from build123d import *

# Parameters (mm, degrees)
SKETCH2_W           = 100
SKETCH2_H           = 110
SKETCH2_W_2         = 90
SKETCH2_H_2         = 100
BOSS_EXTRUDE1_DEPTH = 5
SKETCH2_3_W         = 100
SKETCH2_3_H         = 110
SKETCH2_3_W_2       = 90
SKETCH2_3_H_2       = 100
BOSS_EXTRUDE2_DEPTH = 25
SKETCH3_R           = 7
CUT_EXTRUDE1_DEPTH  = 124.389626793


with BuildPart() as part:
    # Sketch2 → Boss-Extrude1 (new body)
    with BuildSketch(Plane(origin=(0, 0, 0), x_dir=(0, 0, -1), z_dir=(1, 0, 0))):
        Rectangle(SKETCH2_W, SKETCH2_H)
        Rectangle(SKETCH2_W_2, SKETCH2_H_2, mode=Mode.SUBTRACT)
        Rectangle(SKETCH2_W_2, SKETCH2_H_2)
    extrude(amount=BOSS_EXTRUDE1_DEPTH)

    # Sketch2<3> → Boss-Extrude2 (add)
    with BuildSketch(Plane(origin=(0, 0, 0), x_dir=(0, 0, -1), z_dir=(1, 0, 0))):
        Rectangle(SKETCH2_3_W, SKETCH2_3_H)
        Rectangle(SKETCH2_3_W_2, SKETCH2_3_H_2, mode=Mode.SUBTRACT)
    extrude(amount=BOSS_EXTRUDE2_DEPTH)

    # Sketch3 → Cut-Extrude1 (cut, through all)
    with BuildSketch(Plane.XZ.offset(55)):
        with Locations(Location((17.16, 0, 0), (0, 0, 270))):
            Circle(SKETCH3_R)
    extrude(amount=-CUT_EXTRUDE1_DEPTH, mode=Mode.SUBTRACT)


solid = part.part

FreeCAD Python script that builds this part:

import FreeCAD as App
import Part
import Sketcher

V = App.Vector
Q = App.Units.Quantity

doc = App.newDocument("Part")
body = doc.addObject("PartDesign::Body", "Body")

# Sketch on YZ plane
sketch1 = body.newObject("Sketcher::SketchObject", "Sketch")
sketch1.AttachmentSupport = (doc.getObject("YZ_Plane"), [""])
sketch1.MapMode = "FlatFace"
sketch1.addGeometry([
    Part.LineSegment(V(55, 50, 0), V(-55, 50, 0)),
    Part.LineSegment(V(-55, 50, 0), V(-55, -50, 0)),
    Part.LineSegment(V(-55, -50, 0), V(55, -50, 0)),
    Part.LineSegment(V(55, -50, 0), V(55, 50, 0)),
], False)
sketch1.addConstraint([
    Sketcher.Constraint("Coincident", 0, 2, 1, 1),
    Sketcher.Constraint("Coincident", 1, 2, 2, 1),
    Sketcher.Constraint("Coincident", 2, 2, 3, 1),
    Sketcher.Constraint("Coincident", 3, 2, 0, 1),
    Sketcher.Constraint("Horizontal", 0),
    Sketcher.Constraint("Vertical", 1),
    Sketcher.Constraint("Horizontal", 2),
    Sketcher.Constraint("Vertical", 3),
    Sketcher.Constraint("Symmetric", 0, 2, 2, 2, -1, 1),
    Sketcher.Constraint("DistanceX", 0, 2, 0, 1, Q("110 mm")),
    Sketcher.Constraint("DistanceY", 1, 2, 1, 1, Q("100 mm")),
])
pad1 = body.newObject("PartDesign::Pad", "Pad")
pad1.Profile = sketch1
pad1.Length = 5

# Sketch on YZ plane
sketch2 = body.newObject("Sketcher::SketchObject", "Sketch001")
sketch2.AttachmentSupport = (doc.getObject("YZ_Plane"), [""])
sketch2.MapMode = "FlatFace"
sketch2.addGeometry([
    Part.LineSegment(V(55, 50, 0), V(-55, 50, 0)),  # 0
    Part.LineSegment(V(-55, 50, 0), V(-55, -50, 0)),  # 1
    Part.LineSegment(V(-55, -50, 0), V(55, -50, 0)),  # 2
    Part.LineSegment(V(55, -50, 0), V(55, 50, 0)),  # 3
    Part.LineSegment(V(-50, -45, 0), V(-50, 45, 0)),  # 4
    Part.LineSegment(V(-50, 45, 0), V(50, 45, 0)),  # 5
    Part.LineSegment(V(50, 45, 0), V(50, -45, 0)),  # 6
    Part.LineSegment(V(50, -45, 0), V(-50, -45, 0)),  # 7
], False)
sketch2.addConstraint([
    Sketcher.Constraint("Coincident", 0, 2, 1, 1),
    Sketcher.Constraint("Coincident", 1, 2, 2, 1),
    Sketcher.Constraint("Coincident", 2, 2, 3, 1),
    Sketcher.Constraint("Coincident", 3, 2, 0, 1),
    Sketcher.Constraint("Coincident", 4, 2, 5, 1),
    Sketcher.Constraint("Coincident", 5, 2, 6, 1),
    Sketcher.Constraint("Coincident", 6, 2, 7, 1),
    Sketcher.Constraint("Coincident", 7, 2, 4, 1),
    Sketcher.Constraint("Horizontal", 0),
    Sketcher.Constraint("Vertical", 1),
    Sketcher.Constraint("Horizontal", 2),
    Sketcher.Constraint("Vertical", 3),
    Sketcher.Constraint("Vertical", 4),
    Sketcher.Constraint("Horizontal", 5),
    Sketcher.Constraint("Vertical", 6),
    Sketcher.Constraint("Horizontal", 7),
    Sketcher.Constraint("Symmetric", 0, 2, 2, 2, -1, 1),
    Sketcher.Constraint("Symmetric", 4, 2, 6, 2, -1, 1),
    Sketcher.Constraint("Equal", 7, 1),
    Sketcher.Constraint("DistanceX", 0, 2, 0, 1, Q("110 mm")),
    Sketcher.Constraint("DistanceX", 5, 1, 5, 2, Q("100 mm")),
    Sketcher.Constraint("DistanceY", 4, 1, 4, 2, Q("90 mm")),
])
pad2 = body.newObject("PartDesign::Pad", "Pad001")
pad2.Profile = sketch2
pad2.Length = 25

# Sketch on XZ plane
sketch3 = body.newObject("Sketcher::SketchObject", "Sketch002")
sketch3.AttachmentSupport = (doc.getObject("XZ_Plane"), [""])
sketch3.MapMode = "FlatFace"
sketch3.AttachmentOffset = App.Placement(V(0, 0, 55), App.Rotation())
sketch3.addGeometry(Part.Circle(V(17, 0, 0), V(0, 0, 1), 7), False)
sketch3.addConstraint([
    Sketcher.Constraint("PointOnObject", 0, 3, -1),
    Sketcher.Constraint("Diameter", 0, Q("14 mm")),
    Sketcher.Constraint("DistanceX", -1, 1, 0, 3, Q("17.16 mm")),
])
pocket1 = body.newObject("PartDesign::Pocket", "Pocket")
pocket1.Profile = sketch3
pocket1.Type = "ThroughAll"

doc.recompute()
